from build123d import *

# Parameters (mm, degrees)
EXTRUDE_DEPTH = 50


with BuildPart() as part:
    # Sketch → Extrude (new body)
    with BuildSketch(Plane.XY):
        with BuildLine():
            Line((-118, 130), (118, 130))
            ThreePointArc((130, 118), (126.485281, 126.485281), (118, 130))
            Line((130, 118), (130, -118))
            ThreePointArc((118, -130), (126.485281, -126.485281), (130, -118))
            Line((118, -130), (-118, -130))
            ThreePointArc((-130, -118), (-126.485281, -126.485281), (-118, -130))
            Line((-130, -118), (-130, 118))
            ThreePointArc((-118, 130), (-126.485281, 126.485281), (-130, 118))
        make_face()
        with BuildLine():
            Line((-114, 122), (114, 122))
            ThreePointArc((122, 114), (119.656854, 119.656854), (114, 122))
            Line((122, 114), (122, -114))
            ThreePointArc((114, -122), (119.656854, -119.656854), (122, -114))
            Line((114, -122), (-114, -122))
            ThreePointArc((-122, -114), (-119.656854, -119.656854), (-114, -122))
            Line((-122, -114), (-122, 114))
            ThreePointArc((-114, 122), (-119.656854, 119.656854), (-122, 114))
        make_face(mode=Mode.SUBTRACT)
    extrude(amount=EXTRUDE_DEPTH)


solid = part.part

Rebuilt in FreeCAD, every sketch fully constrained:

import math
import FreeCAD as App
import Part
import Sketcher

V = App.Vector

doc = App.newDocument("Part")
body = doc.addObject("PartDesign::Body", "Body")

# Sketch on XY plane
sketch1 = body.newObject("Sketcher::SketchObject", "Sketch")
sketch1.AttachmentSupport = (doc.getObject("XY_Plane"), [""])
sketch1.MapMode = "FlatFace"
sketch1.addGeometry(Part.LineSegment(V(118, 130, 0), V(-118, 130, 0)), False)
sketch1.addGeometry(Part.ArcOfCircle(Part.Circle(V(-118, 118, 0), V(0, 0, 1), 12), math.radians(90), math.radians(180)), False)
sketch1.addGeometry(Part.LineSegment(V(-130, 118, 0), V(-130, -118, 0)), False)
sketch1.addGeometry(Part.ArcOfCircle(Part.Circle(V(-118, -118, 0), V(0, 0, 1), 12), math.radians(-180), math.radians(-90)), False)
sketch1.addGeometry(Part.LineSegment(V(-118, -130, 0), V(118, -130, 0)), False)
sketch1.addGeometry(Part.ArcOfCircle(Part.Circle(V(118, -118, 0), V(0, 0, 1), 12), math.radians(-90), math.radians(0)), False)
sketch1.addGeometry(Part.LineSegment(V(130, -118, 0), V(130, 118, 0)), False)
sketch1.addGeometry(Part.ArcOfCircle(Part.Circle(V(118, 118, 0), V(0, 0, 1), 12), math.radians(0), math.radians(90)), False)
sketch1.addGeometry(Part.LineSegment(V(-114, 122, 0), V(114, 122, 0)), False)
sketch1.addGeometry(Part.ArcOfCircle(Part.Circle(V(114, 114, 0), V(0, 0, 1), 8), math.radians(0), math.radians(90)), False)
sketch1.addGeometry(Part.LineSegment(V(122, 114, 0), V(122, -114, 0)), False)
sketch1.addGeometry(Part.ArcOfCircle(Part.Circle(V(114, -114, 0), V(0, 0, 1), 8), math.radians(-90), math.radians(0)), False)
sketch1.addGeometry(Part.LineSegment(V(114, -122, 0), V(-114, -122, 0)), False)
sketch1.addGeometry(Part.ArcOfCircle(Part.Circle(V(-114, -114, 0), V(0, 0, 1), 8), math.radians(-180), math.radians(-90)), False)
sketch1.addGeometry(Part.LineSegment(V(-122, -114, 0), V(-122, 114, 0)), False)
sketch1.addGeometry(Part.ArcOfCircle(Part.Circle(V(-114, 114, 0), V(0, 0, 1), 8), math.radians(90), math.radians(180)), False)
sketch1.addConstraint(Sketcher.Constraint("Tangent", 0, 2, 1, 1))
sketch1.addConstraint(Sketcher.Constraint("Tangent", 1, 2, 2, 1))
sketch1.addConstraint(Sketcher.Constraint("Tangent", 2, 2, 3, 1))
sketch1.addConstraint(Sketcher.Constraint("Tangent", 3, 2, 4, 1))
sketch1.addConstraint(Sketcher.Constraint("Tangent", 4, 2, 5, 1))
sketch1.addConstraint(Sketcher.Constraint("Tangent", 5, 2, 6, 1))
sketch1.addConstraint(Sketcher.Constraint("Tangent", 6, 2, 7, 1))
sketch1.addConstraint(Sketcher.Constraint("Tangent", 7, 2, 0, 1))
sketch1.addConstraint(Sketcher.Constraint("Tangent", 8, 2, 9, 2))
sketch1.addConstraint(Sketcher.Constraint("Tangent", 9, 1, 10, 1))
sketch1.addConstraint(Sketcher.Constraint("Tangent", 10, 2, 11, 2))
sketch1.addConstraint(Sketcher.Constraint("Tangent", 11, 1, 12, 1))
sketch1.addConstraint(Sketcher.Constraint("Tangent", 12, 2, 13, 2))
sketch1.addConstraint(Sketcher.Constraint("Tangent", 13, 1, 14, 1))
sketch1.addConstraint(Sketcher.Constraint("Tangent", 14, 2, 15, 2))
sketch1.addConstraint(Sketcher.Constraint("Tangent", 15, 1, 8, 1))
sketch1.addConstraint(Sketcher.Constraint("Horizontal", 0))
sketch1.addConstraint(Sketcher.Constraint("Vertical", 2))
sketch1.addConstraint(Sketcher.Constraint("Horizontal", 4))
sketch1.addConstraint(Sketcher.Constraint("Vertical", 6))
sketch1.addConstraint(Sketcher.Constraint("Horizontal", 8))
sketch1.addConstraint(Sketcher.Constraint("Vertical", 10))
sketch1.addConstraint(Sketcher.Constraint("Horizontal", 12))
sketch1.addConstraint(Sketcher.Constraint("Vertical", 14))
sketch1.addConstraint(Sketcher.Constraint("Equal", 1, 3))
sketch1.addConstraint(Sketcher.Constraint("Equal", 3, 5))
sketch1.addConstraint(Sketcher.Constraint("Equal", 5, 7))
sketch1.addConstraint(Sketcher.Constraint("Equal", 9, 11))
sketch1.addConstraint(Sketcher.Constraint("Equal", 11, 13))
sketch1.addConstraint(Sketcher.Constraint("Equal", 13, 15))
sketch1.addConstraint(Sketcher.Constraint("Symmetric", 1, 3, 5, 3, -1, 1))
sketch1.addConstraint(Sketcher.Constraint("Symmetric", 9, 3, 13, 3, -1, 1))
sketch1.addConstraint(Sketcher.Constraint("Equal", 4, 2))
sketch1.addConstraint(Sketcher.Constraint("Equal", 12, 10))
sketch1.addConstraint(Sketcher.Constraint("Radius", 1, 12.000001))
sketch1.addConstraint(Sketcher.Constraint("Radius", 9, 8.000001))
sketch1.addConstraint(Sketcher.Constraint("DistanceX", 0, 2, 0, 1, 236.0))
sketch1.addConstraint(Sketcher.Constraint("DistanceX", 8, 1, 8, 2, 228.0))
pad1 = body.newObject("PartDesign::Pad", "Pad")
pad1.Profile = sketch1
pad1.Length = 50

doc.recompute()
